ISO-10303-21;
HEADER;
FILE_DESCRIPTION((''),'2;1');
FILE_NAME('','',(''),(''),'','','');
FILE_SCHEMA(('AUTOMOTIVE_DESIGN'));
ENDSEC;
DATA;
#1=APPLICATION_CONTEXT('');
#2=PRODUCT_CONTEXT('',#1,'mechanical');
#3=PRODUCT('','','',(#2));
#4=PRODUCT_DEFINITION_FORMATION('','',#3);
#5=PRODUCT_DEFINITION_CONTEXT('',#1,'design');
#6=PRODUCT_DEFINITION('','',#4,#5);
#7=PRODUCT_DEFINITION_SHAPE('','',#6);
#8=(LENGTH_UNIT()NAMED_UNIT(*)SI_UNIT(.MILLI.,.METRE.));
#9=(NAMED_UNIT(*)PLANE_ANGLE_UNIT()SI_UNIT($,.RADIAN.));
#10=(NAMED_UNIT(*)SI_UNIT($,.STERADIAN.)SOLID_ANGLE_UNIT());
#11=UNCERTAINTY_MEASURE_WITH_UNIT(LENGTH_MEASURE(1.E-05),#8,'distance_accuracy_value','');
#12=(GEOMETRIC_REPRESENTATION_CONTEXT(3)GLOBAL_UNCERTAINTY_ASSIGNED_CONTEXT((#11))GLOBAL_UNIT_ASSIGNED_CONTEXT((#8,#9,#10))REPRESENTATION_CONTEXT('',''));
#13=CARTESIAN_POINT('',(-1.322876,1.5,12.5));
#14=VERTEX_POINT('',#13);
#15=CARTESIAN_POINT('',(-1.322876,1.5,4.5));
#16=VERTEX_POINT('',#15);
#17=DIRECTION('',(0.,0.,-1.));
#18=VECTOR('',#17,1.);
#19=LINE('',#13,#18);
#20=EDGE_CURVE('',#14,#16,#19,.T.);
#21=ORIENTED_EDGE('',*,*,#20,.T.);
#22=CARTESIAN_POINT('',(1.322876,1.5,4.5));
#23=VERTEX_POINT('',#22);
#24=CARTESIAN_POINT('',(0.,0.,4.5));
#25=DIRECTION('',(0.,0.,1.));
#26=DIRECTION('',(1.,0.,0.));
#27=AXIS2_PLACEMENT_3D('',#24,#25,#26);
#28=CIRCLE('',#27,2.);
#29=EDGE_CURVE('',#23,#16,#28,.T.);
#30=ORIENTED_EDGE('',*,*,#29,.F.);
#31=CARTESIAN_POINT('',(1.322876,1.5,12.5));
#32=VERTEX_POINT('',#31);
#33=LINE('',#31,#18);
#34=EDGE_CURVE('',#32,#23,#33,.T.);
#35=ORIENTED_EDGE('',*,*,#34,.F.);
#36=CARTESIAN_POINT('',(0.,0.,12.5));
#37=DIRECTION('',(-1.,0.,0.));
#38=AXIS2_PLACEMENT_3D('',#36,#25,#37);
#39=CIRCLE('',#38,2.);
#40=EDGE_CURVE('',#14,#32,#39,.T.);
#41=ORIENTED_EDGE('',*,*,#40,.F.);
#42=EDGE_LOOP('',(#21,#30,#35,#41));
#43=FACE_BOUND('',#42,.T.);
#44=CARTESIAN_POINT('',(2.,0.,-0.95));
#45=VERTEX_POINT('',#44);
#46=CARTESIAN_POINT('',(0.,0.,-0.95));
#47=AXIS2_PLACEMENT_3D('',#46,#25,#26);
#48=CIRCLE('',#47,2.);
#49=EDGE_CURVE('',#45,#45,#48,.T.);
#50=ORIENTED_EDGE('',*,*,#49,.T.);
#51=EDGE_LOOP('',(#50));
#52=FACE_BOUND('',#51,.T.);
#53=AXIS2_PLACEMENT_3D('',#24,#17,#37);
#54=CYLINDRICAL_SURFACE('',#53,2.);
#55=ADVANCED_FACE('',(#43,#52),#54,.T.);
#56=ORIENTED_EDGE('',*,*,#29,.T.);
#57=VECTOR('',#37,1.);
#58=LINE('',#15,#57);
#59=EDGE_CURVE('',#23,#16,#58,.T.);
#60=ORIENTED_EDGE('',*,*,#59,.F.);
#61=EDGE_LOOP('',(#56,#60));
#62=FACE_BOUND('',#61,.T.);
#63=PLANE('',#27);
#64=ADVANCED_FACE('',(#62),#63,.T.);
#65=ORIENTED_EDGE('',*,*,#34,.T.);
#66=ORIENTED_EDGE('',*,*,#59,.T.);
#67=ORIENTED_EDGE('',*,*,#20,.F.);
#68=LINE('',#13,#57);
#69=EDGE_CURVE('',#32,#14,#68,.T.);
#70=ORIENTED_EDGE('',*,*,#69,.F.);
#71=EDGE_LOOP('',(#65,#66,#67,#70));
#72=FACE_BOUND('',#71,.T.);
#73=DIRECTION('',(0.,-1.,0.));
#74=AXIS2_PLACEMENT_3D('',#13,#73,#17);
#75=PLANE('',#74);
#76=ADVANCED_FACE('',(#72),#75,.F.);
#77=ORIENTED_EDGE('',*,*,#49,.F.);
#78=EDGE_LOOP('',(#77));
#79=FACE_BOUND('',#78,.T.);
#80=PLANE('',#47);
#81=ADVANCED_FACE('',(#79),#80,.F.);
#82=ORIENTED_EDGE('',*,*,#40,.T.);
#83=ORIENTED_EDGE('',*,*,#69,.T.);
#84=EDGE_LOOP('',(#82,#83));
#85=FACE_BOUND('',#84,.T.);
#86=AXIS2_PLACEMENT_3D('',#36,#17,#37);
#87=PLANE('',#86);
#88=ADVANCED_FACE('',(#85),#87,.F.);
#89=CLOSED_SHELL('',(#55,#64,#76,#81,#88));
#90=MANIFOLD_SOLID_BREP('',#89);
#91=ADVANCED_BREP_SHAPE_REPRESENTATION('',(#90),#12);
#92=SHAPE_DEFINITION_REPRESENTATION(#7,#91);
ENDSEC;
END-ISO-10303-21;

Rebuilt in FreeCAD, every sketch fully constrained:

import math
import FreeCAD as App
import Part
import Sketcher
from FreeCAD import Vector

doc = App.newDocument("Part")
params = doc.addObject("Spreadsheet::Sheet", "Params")
for row, (alias, value) in enumerate([
    ("sketch1_diameter", "4 mm"),
    ("pad1_length", "5.45 mm"),
    ("sketch2_radius", "2 mm"),
    ("pad2_length", "8 mm"),
], start=1):
    params.set(f"A{row}", alias)
    params.set(f"B{row}", "=" + value)
    params.setAlias(f"B{row}", alias)

body = doc.addObject("PartDesign::Body", "Body")

sketch1 = body.newObject("Sketcher::SketchObject", "Sketch")
sketch1.AttachmentSupport = (doc.getObject("XY_Plane"), [""])
sketch1.MapMode = "FlatFace"
sketch1.AttachmentOffset = App.Placement(Vector(0, 0, -0.95), App.Rotation())
sketch1.addGeometry(Part.Circle(Vector(0, 0, 0), Vector(0, 0, 1), 2), False)
sketch1.addConstraint([
    Sketcher.Constraint("Coincident", 0, 3, -1, 1),
    Sketcher.Constraint("Diameter", 0, 4.0),
])
sketch1.setExpression("Constraints[1]", "Params.sketch1_diameter")
pad1 = body.newObject("PartDesign::Pad", "Pad")
pad1.Profile = sketch1
pad1.setExpression("Length", "Params.pad1_length")

sketch2 = body.newObject("Sketcher::SketchObject", "Sketch001")
sketch2.AttachmentSupport = (doc.getObject("XY_Plane"), [""])
sketch2.MapMode = "FlatFace"
sketch2.AttachmentOffset = App.Placement(Vector(0, 0, 4.5), App.Rotation())
sketch2.addGeometry([
    Part.LineSegment(Vector(1.3, 1.5, 0), Vector(-1.3, 1.5, 0)),
    Part.ArcOfCircle(Part.Circle(Vector(0, 0, 0), Vector(0, 0, 1), 2), math.radians(131), math.radians(409)),
], False)
sketch2.addConstraint([
    Sketcher.Constraint("Coincident", 0, 1, 1, 2),
    Sketcher.Constraint("Coincident", 1, 1, 0, 2),
    Sketcher.Constraint("Horizontal", 0),
    Sketcher.Constraint("Coincident", 1, 3, -1, 1),
    Sketcher.Constraint("Radius", 1, 2.0),
    Sketcher.Constraint("DistanceY", -1, 1, 0, 1, 1.5),
])
sketch2.setExpression("Constraints[4]", "Params.sketch2_radius")
pad2 = body.newObject("PartDesign::Pad", "Pad001")
pad2.Profile = sketch2
pad2.setExpression("Length", "Params.pad2_length")

doc.recompute()
